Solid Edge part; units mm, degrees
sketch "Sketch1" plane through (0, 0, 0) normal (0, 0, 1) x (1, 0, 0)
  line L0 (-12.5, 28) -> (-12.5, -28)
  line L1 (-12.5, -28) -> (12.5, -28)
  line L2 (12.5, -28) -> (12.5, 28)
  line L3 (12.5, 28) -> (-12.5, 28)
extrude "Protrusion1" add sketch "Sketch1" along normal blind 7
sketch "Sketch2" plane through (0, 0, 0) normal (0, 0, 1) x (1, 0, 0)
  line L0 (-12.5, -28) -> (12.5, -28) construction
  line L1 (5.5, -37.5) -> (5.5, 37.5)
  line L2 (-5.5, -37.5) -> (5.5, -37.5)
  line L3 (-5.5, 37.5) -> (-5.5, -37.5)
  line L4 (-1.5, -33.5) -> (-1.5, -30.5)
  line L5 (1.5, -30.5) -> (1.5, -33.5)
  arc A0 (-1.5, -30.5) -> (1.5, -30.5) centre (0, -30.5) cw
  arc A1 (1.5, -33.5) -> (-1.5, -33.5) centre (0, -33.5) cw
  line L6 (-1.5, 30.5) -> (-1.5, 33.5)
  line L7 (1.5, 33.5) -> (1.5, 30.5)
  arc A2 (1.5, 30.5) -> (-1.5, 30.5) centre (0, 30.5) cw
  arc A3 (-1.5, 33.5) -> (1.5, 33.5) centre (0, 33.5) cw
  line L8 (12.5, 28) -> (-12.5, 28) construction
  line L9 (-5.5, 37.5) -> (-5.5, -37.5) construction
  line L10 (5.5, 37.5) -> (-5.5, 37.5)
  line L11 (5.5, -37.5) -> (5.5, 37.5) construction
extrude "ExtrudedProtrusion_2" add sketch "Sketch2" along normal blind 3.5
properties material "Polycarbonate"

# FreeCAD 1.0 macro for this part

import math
import FreeCAD as App
import Part
import Sketcher

V = App.Vector
Q = App.Units.Quantity


def add_polygon(sketch, points):
    """Adds a closed chain of lines whose ends are joined by coincident constraints."""
    first, n = sketch.GeometryCount, len(points)
    for a, b in zip(points, points[1:] + points[:1]):
        sketch.addGeometry(Part.LineSegment(App.Vector(*a, 0), App.Vector(*b, 0)), False)
    for i in range(n):
        sketch.addConstraint(Sketcher.Constraint("Coincident", first + i, 2, first + (i + 1) % n, 1))

doc = App.newDocument("Part")
body = doc.addObject("PartDesign::Body", "Body")

sketch1 = body.newObject("Sketcher::SketchObject", "Sketch")
sketch1.AttachmentSupport = (doc.getObject("XY_Plane"), [""])
sketch1.MapMode = "FlatFace"
add_polygon(sketch1, [(12.5, 28), (-12.5, 28), (-12.5, -28), (12.5, -28)])
sketch1.addConstraint([
    Sketcher.Constraint("Horizontal", 0),
    Sketcher.Constraint("Vertical", 1),
    Sketcher.Constraint("Horizontal", 2),
    Sketcher.Constraint("Vertical", 3),
    Sketcher.Constraint("Symmetric", 0, 2, 2, 2, -1, 1),
    Sketcher.Constraint("DistanceX", 0, 2, 0, 1, Q("25 mm")),
    Sketcher.Constraint("DistanceY", 1, 2, 1, 1, Q("56 mm")),
])
pad1 = body.newObject("PartDesign::Pad", "Pad")
pad1.Profile = sketch1
pad1.Length = 7

sketch2 = body.newObject("Sketcher::SketchObject", "Sketch001")
sketch2.AttachmentSupport = (doc.getObject("XY_Plane"), [""])
sketch2.MapMode = "FlatFace"
add_polygon(sketch2, [(-5.5, -37.5), (5.5, -37.5), (5.5, 37.5), (-5.5, 37.5)])
sketch2.addGeometry(Part.ArcOfCircle(Part.Circle(V(0, -33.5, 0), V(0, 0, 1), 1.5), math.radians(180), math.radians(360)), False)
sketch2.addGeometry(Part.LineSegment(V(-1.5, -33.5, 0), V(-1.5, -30.5, 0)), False)
sketch2.addGeometry(Part.ArcOfCircle(Part.Circle(V(0, -30.5, 0), V(0, 0, 1), 1.5), math.radians(0), math.radians(180)), False)
sketch2.addGeometry(Part.LineSegment(V(1.5, -30.5, 0), V(1.5, -33.5, 0)), False)
sketch2.addGeometry(Part.ArcOfCircle(Part.Circle(V(0, 30.5, 0), V(0, 0, 1), 1.5), math.radians(180), math.radians(360)), False)
sketch2.addGeometry(Part.LineSegment(V(-1.5, 30.5, 0), V(-1.5, 33.5, 0)), False)
sketch2.addGeometry(Part.ArcOfCircle(Part.Circle(V(0, 33.5, 0), V(0, 0, 1), 1.5), math.radians(0), math.radians(180)), False)
sketch2.addGeometry(Part.LineSegment(V(1.5, 33.5, 0), V(1.5, 30.5, 0)), False)
sketch2.addConstraint([
    Sketcher.Constraint("Tangent", 4, 1, 5, 1),
    Sketcher.Constraint("Tangent", 5, 2, 6, 2),
    Sketcher.Constraint("Tangent", 6, 1, 7, 1),
    Sketcher.Constraint("Tangent", 7, 2, 4, 2),
    Sketcher.Constraint("Tangent", 8, 1, 9, 1),
    Sketcher.Constraint("Tangent", 9, 2, 10, 2),
    Sketcher.Constraint("Tangent", 10, 1, 11, 1),
    Sketcher.Constraint("Tangent", 11, 2, 8, 2),
    Sketcher.Constraint("Horizontal", 0),
    Sketcher.Constraint("Vertical", 1),
    Sketcher.Constraint("Horizontal", 2),
    Sketcher.Constraint("Vertical", 3),
    Sketcher.Constraint("Vertical", 5),
    Sketcher.Constraint("Vertical", 7),
    Sketcher.Constraint("Vertical", 9),
    Sketcher.Constraint("Vertical", 11),
    Sketcher.Constraint("Equal", 6, 8),
    Sketcher.Constraint("Symmetric", 6, 3, 8, 3, -1, 1),
    Sketcher.Constraint("Symmetric", 0, 2, 2, 2, -1, 1),
    Sketcher.Constraint("Symmetric", 4, 3, 10, 3, -1),
    Sketcher.Constraint("Radius", 4, Q("1.5 mm")),
    Sketcher.Constraint("DistanceX", 0, 1, 0, 2, Q("11 mm")),
    Sketcher.Constraint("DistanceY", 1, 1, 1, 2, Q("75 mm")),
    Sketcher.Constraint("DistanceY", 5, 1, 5, 2, Q("3 mm")),
    Sketcher.Constraint("DistanceY", 6, 3, 8, 3, Q("61 mm")),
])
pad2 = body.newObject("PartDesign::Pad", "Pad001")
pad2.Profile = sketch2
pad2.Length = 3.5

doc.recompute()
